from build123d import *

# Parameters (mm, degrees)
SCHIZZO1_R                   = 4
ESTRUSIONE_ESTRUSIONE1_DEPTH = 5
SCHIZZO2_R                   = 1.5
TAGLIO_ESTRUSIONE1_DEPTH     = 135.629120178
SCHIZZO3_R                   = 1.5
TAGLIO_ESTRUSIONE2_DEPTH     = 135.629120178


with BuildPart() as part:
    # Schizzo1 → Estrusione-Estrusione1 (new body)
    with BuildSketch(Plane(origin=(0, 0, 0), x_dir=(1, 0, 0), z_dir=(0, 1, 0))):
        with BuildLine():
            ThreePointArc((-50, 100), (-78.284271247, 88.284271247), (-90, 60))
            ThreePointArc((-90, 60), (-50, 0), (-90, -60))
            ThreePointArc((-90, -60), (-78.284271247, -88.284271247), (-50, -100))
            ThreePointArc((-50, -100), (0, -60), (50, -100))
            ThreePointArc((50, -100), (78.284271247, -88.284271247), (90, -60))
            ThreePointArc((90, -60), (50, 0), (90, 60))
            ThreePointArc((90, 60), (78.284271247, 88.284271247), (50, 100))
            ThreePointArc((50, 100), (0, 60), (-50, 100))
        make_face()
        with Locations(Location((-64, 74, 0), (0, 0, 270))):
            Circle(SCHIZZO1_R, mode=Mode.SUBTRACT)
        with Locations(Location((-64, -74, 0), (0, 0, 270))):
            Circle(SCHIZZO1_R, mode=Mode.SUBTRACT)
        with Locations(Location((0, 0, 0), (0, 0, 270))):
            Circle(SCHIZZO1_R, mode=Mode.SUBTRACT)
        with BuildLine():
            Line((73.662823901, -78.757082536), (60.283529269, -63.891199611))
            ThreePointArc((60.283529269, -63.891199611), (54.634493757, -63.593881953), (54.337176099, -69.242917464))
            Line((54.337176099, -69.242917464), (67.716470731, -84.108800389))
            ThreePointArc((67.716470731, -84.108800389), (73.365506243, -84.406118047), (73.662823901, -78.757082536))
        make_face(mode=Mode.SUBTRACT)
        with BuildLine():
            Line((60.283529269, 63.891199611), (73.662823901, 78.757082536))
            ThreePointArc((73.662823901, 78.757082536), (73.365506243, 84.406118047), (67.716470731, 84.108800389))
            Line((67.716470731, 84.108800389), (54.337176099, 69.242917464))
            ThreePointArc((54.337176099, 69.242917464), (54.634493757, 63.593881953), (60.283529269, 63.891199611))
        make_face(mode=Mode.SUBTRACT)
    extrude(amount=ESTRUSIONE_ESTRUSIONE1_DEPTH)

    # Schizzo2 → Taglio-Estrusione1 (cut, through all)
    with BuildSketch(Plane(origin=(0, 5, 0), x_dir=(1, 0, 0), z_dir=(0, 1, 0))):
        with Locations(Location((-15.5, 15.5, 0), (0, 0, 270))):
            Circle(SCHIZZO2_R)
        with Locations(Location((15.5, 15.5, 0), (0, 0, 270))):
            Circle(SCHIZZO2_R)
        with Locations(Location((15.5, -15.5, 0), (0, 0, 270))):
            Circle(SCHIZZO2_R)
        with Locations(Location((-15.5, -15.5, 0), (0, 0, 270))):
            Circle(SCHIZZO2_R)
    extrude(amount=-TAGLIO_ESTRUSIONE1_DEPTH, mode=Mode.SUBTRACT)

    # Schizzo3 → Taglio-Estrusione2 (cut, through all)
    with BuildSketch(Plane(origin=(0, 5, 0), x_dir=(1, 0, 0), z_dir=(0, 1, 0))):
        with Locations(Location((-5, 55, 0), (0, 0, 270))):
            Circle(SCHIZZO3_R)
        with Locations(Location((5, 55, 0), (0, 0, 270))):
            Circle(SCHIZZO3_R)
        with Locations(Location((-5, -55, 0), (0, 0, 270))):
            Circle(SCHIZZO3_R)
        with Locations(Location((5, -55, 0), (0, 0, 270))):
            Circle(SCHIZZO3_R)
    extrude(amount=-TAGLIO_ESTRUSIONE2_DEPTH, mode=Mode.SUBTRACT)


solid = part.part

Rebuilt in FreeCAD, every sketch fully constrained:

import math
import FreeCAD as App
import Part
import Sketcher

V = App.Vector
Q = App.Units.Quantity

doc = App.newDocument("Part")
body = doc.addObject("PartDesign::Body", "Body")

sketch1 = doc.addObject("Sketcher::SketchObject", "Sketch")
body.addObject(sketch1)
sketch1.AttachmentSupport = (doc.XZ_Plane, [""])
sketch1.MapMode = "FlatFace"
sketch1.addGeometry(Part.ArcOfCircle(Part.Circle(V(-50, -60, 0), V(0, 0, 1), 40), math.radians(-180), math.radians(-90)), False)
sketch1.addGeometry(Part.ArcOfCircle(Part.Circle(V(-115, 0, 0), V(0, 0, 1), 65), math.radians(-67), math.radians(67)), False)
sketch1.addGeometry(Part.ArcOfCircle(Part.Circle(V(-50, 60, 0), V(0, 0, 1), 40), math.radians(90), math.radians(180)), False)
sketch1.addGeometry(Part.ArcOfCircle(Part.Circle(V(0, 111.2, 0), V(0, 0, 1), 51.2), math.radians(-167), math.radians(-13)), False)
sketch1.addGeometry(Part.ArcOfCircle(Part.Circle(V(50, 60, 0), V(0, 0, 1), 40), math.radians(0), math.radians(90)), False)
sketch1.addGeometry(Part.ArcOfCircle(Part.Circle(V(115, 0, 0), V(0, 0, 1), 65), math.radians(113), math.radians(247)), False)
sketch1.addGeometry(Part.ArcOfCircle(Part.Circle(V(50, -60, 0), V(0, 0, 1), 40), math.radians(-90), math.radians(0)), False)
sketch1.addGeometry(Part.ArcOfCircle(Part.Circle(V(0, -111.2, 0), V(0, 0, 1), 51.2), math.radians(13), math.radians(167)), False)
sketch1.addGeometry(Part.Circle(V(-64, 74, 0), V(0, 0, 1), 4), False)
sketch1.addGeometry(Part.LineSegment(V(60.3, 63.9, 0), V(73.7, 78.8, 0)), False)
sketch1.addGeometry(Part.ArcOfCircle(Part.Circle(V(70.7, 81.4, 0), V(0, 0, 1), 4), math.radians(-42), math.radians(138)), False)
sketch1.addGeometry(Part.LineSegment(V(67.7, 84.1, 0), V(54.3, 69.2, 0)), False)
sketch1.addGeometry(Part.ArcOfCircle(Part.Circle(V(57.3, 66.6, 0), V(0, 0, 1), 4), math.radians(138), math.radians(318)), False)
sketch1.addGeometry(Part.Circle(V(0, 0, 0), V(0, 0, 1), 4), False)
sketch1.addGeometry(Part.Circle(V(-64, -74, 0), V(0, 0, 1), 4), False)
sketch1.addGeometry(Part.LineSegment(V(73.7, -78.8, 0), V(60.3, -63.9, 0)), False)
sketch1.addGeometry(Part.ArcOfCircle(Part.Circle(V(57.3, -66.6, 0), V(0, 0, 1), 4), math.radians(42), math.radians(222)), False)
sketch1.addGeometry(Part.LineSegment(V(54.3, -69.2, 0), V(67.7, -84.1, 0)), False)
sketch1.addGeometry(Part.ArcOfCircle(Part.Circle(V(70.7, -81.4, 0), V(0, 0, 1), 4), math.radians(-138), math.radians(42)), False)
sketch1.addConstraint(Sketcher.Constraint("Coincident", 0, 1, 1, 1))
sketch1.addConstraint(Sketcher.Constraint("Coincident", 1, 2, 2, 2))
sketch1.addConstraint(Sketcher.Constraint("Coincident", 2, 1, 3, 1))
sketch1.addConstraint(Sketcher.Constraint("Coincident", 3, 2, 4, 2))
sketch1.addConstraint(Sketcher.Constraint("Coincident", 4, 1, 5, 1))
sketch1.addConstraint(Sketcher.Constraint("Coincident", 5, 2, 6, 2))
sketch1.addConstraint(Sketcher.Constraint("Coincident", 6, 1, 7, 1))
sketch1.addConstraint(Sketcher.Constraint("Coincident", 7, 2, 0, 2))
sketch1.addConstraint(Sketcher.Constraint("Tangent", 9, 2, 10, 1))
sketch1.addConstraint(Sketcher.Constraint("Tangent", 10, 2, 11, 1))
sketch1.addConstraint(Sketcher.Constraint("Tangent", 11, 2, 12, 1))
sketch1.addConstraint(Sketcher.Constraint("Tangent", 12, 2, 9, 1))
sketch1.addConstraint(Sketcher.Constraint("Tangent", 15, 2, 16, 1))
sketch1.addConstraint(Sketcher.Constraint("Tangent", 16, 2, 17, 1))
sketch1.addConstraint(Sketcher.Constraint("Tangent", 17, 2, 18, 1))
sketch1.addConstraint(Sketcher.Constraint("Tangent", 18, 2, 15, 1))
sketch1.addConstraint(Sketcher.Constraint("Coincident", 13, 3, -1, 1))
sketch1.addConstraint(Sketcher.Constraint("Equal", 0, 2))
sketch1.addConstraint(Sketcher.Constraint("Equal", 2, 4))
sketch1.addConstraint(Sketcher.Constraint("Equal", 1, 5))
sketch1.addConstraint(Sketcher.Constraint("Equal", 4, 6))
sketch1.addConstraint(Sketcher.Constraint("Equal", 3, 7))
sketch1.addConstraint(Sketcher.Constraint("Equal", 8, 10))
sketch1.addConstraint(Sketcher.Constraint("Equal", 10, 12))
sketch1.addConstraint(Sketcher.Constraint("Equal", 12, 13))
sketch1.addConstraint(Sketcher.Constraint("Equal", 13, 14))
sketch1.addConstraint(Sketcher.Constraint("Equal", 14, 16))
sketch1.addConstraint(Sketcher.Constraint("Equal", 16, 18))
sketch1.addConstraint(Sketcher.Constraint("Symmetric", 0, 3, 4, 3, -1, 1))
sketch1.addConstraint(Sketcher.Constraint("Symmetric", 1, 3, 5, 3, -1, 1))
sketch1.addConstraint(Sketcher.Constraint("Symmetric", 2, 3, 6, 3, -1, 1))
sketch1.addConstraint(Sketcher.Constraint("Symmetric", 3, 3, 7, 3, -1, 1))
sketch1.addConstraint(Sketcher.Constraint("Symmetric", 2, 3, 4, 3, -2))
sketch1.addConstraint(Sketcher.Constraint("Symmetric", 8, 3, 14, 3, -1))
sketch1.addConstraint(Sketcher.Constraint("Symmetric", 12, 3, 16, 3, -1))
sketch1.addConstraint(Sketcher.Constraint("Symmetric", 10, 3, 18, 3, -1))
sketch1.addConstraint(Sketcher.Constraint("PointOnObject", 1, 3, -1))
sketch1.addConstraint(Sketcher.Constraint("PointOnObject", 3, 3, -2))
sketch1.addConstraint(Sketcher.Constraint("Horizontal", 6, 3, 0, 1))
sketch1.addConstraint(Sketcher.Constraint("Vertical", 0, 3, 2, 1))
sketch1.addConstraint(Sketcher.Constraint("Diameter", 8, Q("8 mm")))
sketch1.addConstraint(Sketcher.Constraint("Radius", 0, Q("40 mm")))
sketch1.addConstraint(Sketcher.Constraint("Radius", 1, Q("65 mm")))
sketch1.addConstraint(Sketcher.Constraint("Radius", 3, Q("51.25 mm")))
sketch1.addConstraint(Sketcher.Constraint("Distance", 9, Q("20 mm")))
sketch1.addConstraint(Sketcher.Constraint("DistanceX", 0, 3, -1, 1, Q("50 mm")))
sketch1.addConstraint(Sketcher.Constraint("DistanceY", 0, 3, -1, 1, Q("60 mm")))
sketch1.addConstraint(Sketcher.Constraint("DistanceX", 8, 3, -1, 1, Q("64 mm")))
sketch1.addConstraint(Sketcher.Constraint("DistanceY", -1, 1, 8, 3, Q("74 mm")))
sketch1.addConstraint(Sketcher.Constraint("DistanceY", -1, 1, 10, 2, Q("84.1088 mm")))
sketch1.addConstraint(Sketcher.Constraint("DistanceY", -1, 1, 12, 2, Q("63.8912 mm")))
sketch1.addConstraint(Sketcher.Constraint("DistanceX", -1, 1, 10, 2, Q("67.716471 mm")))
pad1 = doc.addObject("PartDesign::Pad", "Pad")
body.addObject(pad1)
pad1.Profile = sketch1
pad1.Length = 5
pad1.Reversed = True

sketch2 = doc.addObject("Sketcher::SketchObject", "Sketch001")
body.addObject(sketch2)
sketch2.AttachmentSupport = (doc.XZ_Plane, [""])
sketch2.MapMode = "FlatFace"
sketch2.AttachmentOffset = App.Placement(V(0, 0, -5), App.Rotation())
sketch2.addGeometry(Part.Circle(V(-15.5, -15.5, 0), V(0, 0, 1), 1.5), False)
sketch2.addGeometry(Part.Circle(V(15.5, -15.5, 0), V(0, 0, 1), 1.5), False)
sketch2.addGeometry(Part.Circle(V(15.5, 15.5, 0), V(0, 0, 1), 1.5), False)
sketch2.addGeometry(Part.Circle(V(-15.5, 15.5, 0), V(0, 0, 1), 1.5), False)
sketch2.addConstraint(Sketcher.Constraint("Equal", 0, 1))
sketch2.addConstraint(Sketcher.Constraint("Equal", 1, 2))
sketch2.addConstraint(Sketcher.Constraint("Equal", 2, 3))
sketch2.addConstraint(Sketcher.Constraint("Symmetric", 0, 3, 2, 3, -1, 1))
sketch2.addConstraint(Sketcher.Constraint("Symmetric", 1, 3, 3, 3, -1, 1))
sketch2.addConstraint(Sketcher.Constraint("Symmetric", 0, 3, 1, 3, -2))
sketch2.addConstraint(Sketcher.Constraint("Diameter", 0, Q("3 mm")))
sketch2.addConstraint(Sketcher.Constraint("DistanceX", 0, 3, 1, 3, Q("31 mm")))
sketch2.addConstraint(Sketcher.Constraint("DistanceY", 1, 3, 2, 3, Q("31 mm")))
pocket1 = doc.addObject("PartDesign::Pocket", "Pocket")
body.addObject(pocket1)
pocket1.Profile = sketch2
pocket1.Type = "ThroughAll"
pocket1.Reversed = True

sketch3 = doc.addObject("Sketcher::SketchObject", "Sketch002")
body.addObject(sketch3)
sketch3.AttachmentSupport = (doc.XZ_Plane, [""])
sketch3.MapMode = "FlatFace"
sketch3.AttachmentOffset = App.Placement(V(0, 0, -5), App.Rotation())
sketch3.addGeometry(Part.Circle(V(-5, -55, 0), V(0, 0, 1), 1.5), False)
sketch3.addGeometry(Part.Circle(V(5, -55, 0), V(0, 0, 1), 1.5), False)
sketch3.addGeometry(Part.Circle(V(-5, 55, 0), V(0, 0, 1), 1.5), False)
sketch3.addGeometry(Part.Circle(V(5, 55, 0), V(0, 0, 1), 1.5), False)
sketch3.addConstraint(Sketcher.Constraint("Equal", 0, 1))
sketch3.addConstraint(Sketcher.Constraint("Equal", 1, 2))
sketch3.addConstraint(Sketcher.Constraint("Equal", 2, 3))
sketch3.addConstraint(Sketcher.Constraint("Symmetric", 1, 3, 2, 3, -1, 1))
sketch3.addConstraint(Sketcher.Constraint("Symmetric", 0, 3, 3, 3, -1, 1))
sketch3.addConstraint(Sketcher.Constraint("Symmetric", 0, 3, 1, 3, -2))
sketch3.addConstraint(Sketcher.Constraint("Diameter", 0, Q("3 mm")))
sketch3.addConstraint(Sketcher.Constraint("DistanceX", 0, 3, -1, 1, Q("5 mm")))
sketch3.addConstraint(Sketcher.Constraint("DistanceY", 0, 3, -1, 1, Q("55 mm")))
pocket2 = doc.addObject("PartDesign::Pocket", "Pocket001")
body.addObject(pocket2)
pocket2.Profile = sketch3
pocket2.Type = "ThroughAll"
pocket2.Reversed = True

doc.recompute()
